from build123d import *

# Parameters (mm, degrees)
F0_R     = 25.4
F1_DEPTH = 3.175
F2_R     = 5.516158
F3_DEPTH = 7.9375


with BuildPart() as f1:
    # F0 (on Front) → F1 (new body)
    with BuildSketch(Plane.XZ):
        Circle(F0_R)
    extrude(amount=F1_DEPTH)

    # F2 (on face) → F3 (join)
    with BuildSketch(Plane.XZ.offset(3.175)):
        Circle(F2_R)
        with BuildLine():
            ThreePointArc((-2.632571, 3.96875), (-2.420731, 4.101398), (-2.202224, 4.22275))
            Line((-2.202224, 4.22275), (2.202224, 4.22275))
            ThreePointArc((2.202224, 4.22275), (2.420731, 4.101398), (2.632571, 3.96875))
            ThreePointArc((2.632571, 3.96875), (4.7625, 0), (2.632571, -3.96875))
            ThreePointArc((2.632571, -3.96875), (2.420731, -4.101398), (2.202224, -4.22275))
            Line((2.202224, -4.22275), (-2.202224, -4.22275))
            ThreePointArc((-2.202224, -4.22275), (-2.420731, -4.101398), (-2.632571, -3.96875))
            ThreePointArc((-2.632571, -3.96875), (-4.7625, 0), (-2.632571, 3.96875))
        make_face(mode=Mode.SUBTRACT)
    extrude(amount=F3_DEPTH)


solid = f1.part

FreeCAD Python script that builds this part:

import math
import FreeCAD as App
import Part
import Sketcher

V = App.Vector
Q = App.Units.Quantity

doc = App.newDocument("Part")
body = doc.addObject("PartDesign::Body", "Body")

# Sketch on XZ plane
sketch1 = body.newObject("Sketcher::SketchObject", "Sketch")
sketch1.AttachmentSupport = (doc.getObject("XZ_Plane"), [""])
sketch1.MapMode = "FlatFace"
sketch1.addGeometry(Part.Circle(V(0, 0, 0), V(0, 0, 1), 25.4), False)
sketch1.addConstraint([
    Sketcher.Constraint("Coincident", 0, 3, -1, 1),
    Sketcher.Constraint("Diameter", 0, Q("2 in")),
])
pad1 = body.newObject("PartDesign::Pad", "Pad")
pad1.Profile = sketch1
pad1.Length = Q("0.125 in")

# Sketch on XZ plane
sketch2 = body.newObject("Sketcher::SketchObject", "Sketch001")
sketch2.AttachmentSupport = (doc.getObject("XZ_Plane"), [""])
sketch2.MapMode = "FlatFace"
sketch2.AttachmentOffset = App.Placement(V(0, 0, 0.125 * 25.4), App.Rotation())
sketch2.addGeometry([
    Part.Circle(V(0, 0, 0), V(0, 0, 1), 5.516158),  # 0
    Part.ArcOfCircle(Part.Circle(V(0, 0, 0), V(0, 0, 1), 4.7625), math.radians(123.557311), math.radians(236.442689)),  # 1
    Part.ArcOfCircle(Part.Circle(V(0.000127, -0.000212, 0), V(0, 0, 1), 4.762747), math.radians(117.542853), math.radians(123.557172)),  # 2
    Part.LineSegment(V(-2.202224, 4.22275, 0), V(2.202224, 4.22275, 0)),  # 3
    Part.ArcOfCircle(Part.Circle(V(-0.000127, -0.000212, 0), V(0, 0, 1), 4.762747), math.radians(56.442828), math.radians(62.457147)),  # 4
    Part.ArcOfCircle(Part.Circle(V(0, 0, 0), V(0, 0, 1), 4.7625), math.radians(-56.442689), math.radians(56.442689)),  # 5
    Part.ArcOfCircle(Part.Circle(V(-0.000127, 0.000212, 0), V(0, 0, 1), 4.762747), math.radians(-62.457147), math.radians(-56.442828)),  # 6
    Part.LineSegment(V(2.202224, -4.22275, 0), V(-2.202224, -4.22275, 0)),  # 7
    Part.ArcOfCircle(Part.Circle(V(0.000127, 0.000212, 0), V(0, 0, 1), 4.762747), math.radians(-123.557172), math.radians(-117.542853)),  # 8
], False)
sketch2.addConstraint([
    Sketcher.Constraint("Coincident", 1, 1, 2, 2),
    Sketcher.Constraint("Coincident", 2, 1, 3, 1),
    Sketcher.Constraint("Coincident", 3, 2, 4, 2),
    Sketcher.Constraint("Coincident", 4, 1, 5, 2),
    Sketcher.Constraint("Coincident", 5, 1, 6, 2),
    Sketcher.Constraint("Coincident", 6, 1, 7, 1),
    Sketcher.Constraint("Coincident", 7, 2, 8, 2),
    Sketcher.Constraint("Coincident", 8, 1, 1, 2),
    Sketcher.Constraint("Horizontal", 3),
    Sketcher.Constraint("Horizontal", 7),
    Sketcher.Constraint("Coincident", 0, 3, -1, 1),
    Sketcher.Constraint("Coincident", 1, 3, -1, 1),
    Sketcher.Constraint("Coincident", 5, 3, -1, 1),
    Sketcher.Constraint("Equal", 2, 4),
    Sketcher.Constraint("Equal", 1, 5),
    Sketcher.Constraint("Equal", 4, 6),
    Sketcher.Constraint("Equal", 6, 8),
    Sketcher.Constraint("Symmetric", 2, 1, 6, 1, -1, 1),
    Sketcher.Constraint("Horizontal", 2, 3, 4, 3),
    Sketcher.Constraint("Horizontal", 6, 3, 8, 3),
    Sketcher.Constraint("Horizontal", 1, 1, 4, 1),
    Sketcher.Constraint("Horizontal", 5, 1, 8, 1),
    Sketcher.Constraint("Vertical", 4, 1, 5, 1),
    Sketcher.Constraint("Radius", 1, Q("0.1875 in")),
    Sketcher.Constraint("DistanceY", 1, 1, 2, 1, Q("0.01 in")),
    Sketcher.Constraint("DistanceY", -1, 1, 1, 1, Q("0.15625 in")),
    Sketcher.Constraint("Diameter", 0, 11.032316),
    Sketcher.Constraint("Radius", 2, 4.762747),
    Sketcher.Constraint("DistanceX", 3, 1, 3, 2, 4.404448),
])
pad2 = body.newObject("PartDesign::Pad", "Pad001")
pad2.Profile = sketch2
pad2.Length = Q("0.3125 in")

doc.recompute()
